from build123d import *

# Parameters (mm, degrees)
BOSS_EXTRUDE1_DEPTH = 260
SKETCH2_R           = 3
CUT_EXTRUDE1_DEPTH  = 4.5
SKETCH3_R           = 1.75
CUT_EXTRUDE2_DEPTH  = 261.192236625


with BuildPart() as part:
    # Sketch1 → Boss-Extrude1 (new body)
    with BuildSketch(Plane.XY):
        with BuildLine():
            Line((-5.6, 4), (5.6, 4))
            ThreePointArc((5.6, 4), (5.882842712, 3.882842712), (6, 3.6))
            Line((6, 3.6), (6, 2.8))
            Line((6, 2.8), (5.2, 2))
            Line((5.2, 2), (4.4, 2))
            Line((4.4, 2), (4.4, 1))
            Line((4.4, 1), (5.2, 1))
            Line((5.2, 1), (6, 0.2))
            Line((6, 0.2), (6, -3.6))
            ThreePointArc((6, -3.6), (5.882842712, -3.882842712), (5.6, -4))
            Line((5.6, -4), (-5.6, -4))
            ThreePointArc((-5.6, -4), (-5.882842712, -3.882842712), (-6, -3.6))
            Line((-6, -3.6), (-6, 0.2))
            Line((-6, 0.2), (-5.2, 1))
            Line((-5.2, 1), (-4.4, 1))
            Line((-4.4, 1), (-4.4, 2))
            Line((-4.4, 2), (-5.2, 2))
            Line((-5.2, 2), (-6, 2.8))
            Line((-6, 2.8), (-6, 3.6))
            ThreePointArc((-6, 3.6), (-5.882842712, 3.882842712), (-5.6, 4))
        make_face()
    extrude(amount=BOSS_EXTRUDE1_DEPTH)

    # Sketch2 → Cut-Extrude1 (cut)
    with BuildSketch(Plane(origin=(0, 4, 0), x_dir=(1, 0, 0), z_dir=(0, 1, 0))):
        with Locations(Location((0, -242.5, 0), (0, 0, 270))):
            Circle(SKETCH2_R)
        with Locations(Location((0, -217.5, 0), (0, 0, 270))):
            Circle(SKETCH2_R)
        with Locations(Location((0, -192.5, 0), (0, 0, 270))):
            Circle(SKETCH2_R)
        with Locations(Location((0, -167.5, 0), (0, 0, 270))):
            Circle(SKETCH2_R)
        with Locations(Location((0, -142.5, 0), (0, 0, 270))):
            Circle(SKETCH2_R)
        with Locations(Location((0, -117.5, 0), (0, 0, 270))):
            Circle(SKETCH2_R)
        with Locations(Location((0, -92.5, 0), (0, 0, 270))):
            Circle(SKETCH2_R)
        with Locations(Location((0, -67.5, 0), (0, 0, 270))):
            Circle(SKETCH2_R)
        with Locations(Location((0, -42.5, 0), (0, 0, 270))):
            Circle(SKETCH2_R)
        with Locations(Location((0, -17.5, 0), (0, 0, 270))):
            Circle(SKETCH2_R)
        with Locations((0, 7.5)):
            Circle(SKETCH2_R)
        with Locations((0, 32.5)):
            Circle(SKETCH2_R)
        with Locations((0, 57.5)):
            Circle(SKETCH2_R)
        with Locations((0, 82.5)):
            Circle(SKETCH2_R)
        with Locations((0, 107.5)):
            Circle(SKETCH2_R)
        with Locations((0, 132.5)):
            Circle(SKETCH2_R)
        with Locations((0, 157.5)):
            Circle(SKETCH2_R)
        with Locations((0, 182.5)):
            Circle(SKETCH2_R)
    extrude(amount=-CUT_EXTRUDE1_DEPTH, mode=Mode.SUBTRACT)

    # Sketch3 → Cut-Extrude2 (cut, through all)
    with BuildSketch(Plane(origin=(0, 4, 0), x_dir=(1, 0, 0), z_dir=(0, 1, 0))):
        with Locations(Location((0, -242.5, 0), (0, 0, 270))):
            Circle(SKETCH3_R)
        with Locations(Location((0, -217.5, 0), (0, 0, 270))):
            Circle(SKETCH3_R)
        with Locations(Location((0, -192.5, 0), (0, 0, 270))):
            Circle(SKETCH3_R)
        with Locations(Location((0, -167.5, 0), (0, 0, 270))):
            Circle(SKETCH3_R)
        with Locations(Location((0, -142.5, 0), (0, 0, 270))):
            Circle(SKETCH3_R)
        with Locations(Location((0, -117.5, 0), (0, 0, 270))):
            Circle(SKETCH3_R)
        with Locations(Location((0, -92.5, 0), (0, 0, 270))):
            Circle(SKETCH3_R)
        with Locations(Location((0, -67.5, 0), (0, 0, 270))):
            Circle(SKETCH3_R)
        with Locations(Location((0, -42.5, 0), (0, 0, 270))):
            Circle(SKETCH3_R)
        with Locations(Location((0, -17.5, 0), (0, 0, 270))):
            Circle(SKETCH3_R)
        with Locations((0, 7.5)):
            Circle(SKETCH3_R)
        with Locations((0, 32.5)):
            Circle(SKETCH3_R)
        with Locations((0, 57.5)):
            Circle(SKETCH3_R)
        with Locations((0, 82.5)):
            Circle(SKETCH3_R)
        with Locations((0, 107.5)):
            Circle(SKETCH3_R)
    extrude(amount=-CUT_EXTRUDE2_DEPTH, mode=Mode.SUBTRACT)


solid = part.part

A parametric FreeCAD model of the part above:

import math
import FreeCAD as App
import Part
import Sketcher

V = App.Vector
Q = App.Units.Quantity

doc = App.newDocument("Part")
body = doc.addObject("PartDesign::Body", "Body")

# Sketch on XY plane
sketch1 = body.newObject("Sketcher::SketchObject", "Sketch")
sketch1.AttachmentSupport = (doc.getObject("XY_Plane"), [""])
sketch1.MapMode = "FlatFace"
sketch1.addGeometry([
    Part.LineSegment(V(5.6, 4, 0), V(-5.6, 4, 0)),  # 0
    Part.ArcOfCircle(Part.Circle(V(-5.6, 3.6, 0), V(0, 0, 1), 0.4), math.radians(90), math.radians(180)),  # 1
    Part.LineSegment(V(-6, 3.6, 0), V(-6, 2.8, 0)),  # 2
    Part.LineSegment(V(-6, 2.8, 0), V(-5.2, 2, 0)),  # 3
    Part.LineSegment(V(-5.2, 2, 0), V(-4.4, 2, 0)),  # 4
    Part.LineSegment(V(-4.4, 2, 0), V(-4.4, 1, 0)),  # 5
    Part.LineSegment(V(-4.4, 1, 0), V(-5.2, 1, 0)),  # 6
    Part.LineSegment(V(-5.2, 1, 0), V(-6, 0.2, 0)),  # 7
    Part.LineSegment(V(-6, 0.2, 0), V(-6, -3.6, 0)),  # 8
    Part.ArcOfCircle(Part.Circle(V(-5.6, -3.6, 0), V(0, 0, 1), 0.4), math.radians(-180), math.radians(-90)),  # 9
    Part.LineSegment(V(-5.6, -4, 0), V(5.6, -4, 0)),  # 10
    Part.ArcOfCircle(Part.Circle(V(5.6, -3.6, 0), V(0, 0, 1), 0.4), math.radians(-90), math.radians(0)),  # 11
    Part.LineSegment(V(6, -3.6, 0), V(6, 0.2, 0)),  # 12
    Part.LineSegment(V(6, 0.2, 0), V(5.2, 1, 0)),  # 13
    Part.LineSegment(V(5.2, 1, 0), V(4.4, 1, 0)),  # 14
    Part.LineSegment(V(4.4, 1, 0), V(4.4, 2, 0)),  # 15
    Part.LineSegment(V(4.4, 2, 0), V(5.2, 2, 0)),  # 16
    Part.LineSegment(V(5.2, 2, 0), V(6, 2.8, 0)),  # 17
    Part.LineSegment(V(6, 2.8, 0), V(6, 3.6, 0)),  # 18
    Part.ArcOfCircle(Part.Circle(V(5.6, 3.6, 0), V(0, 0, 1), 0.4), math.radians(0), math.radians(90)),  # 19
], False)
sketch1.addConstraint([
    Sketcher.Constraint("Tangent", 0, 2, 1, 1),
    Sketcher.Constraint("Tangent", 1, 2, 2, 1),
    Sketcher.Constraint("Coincident", 2, 2, 3, 1),
    Sketcher.Constraint("Coincident", 3, 2, 4, 1),
    Sketcher.Constraint("Coincident", 4, 2, 5, 1),
    Sketcher.Constraint("Coincident", 5, 2, 6, 1),
    Sketcher.Constraint("Coincident", 6, 2, 7, 1),
    Sketcher.Constraint("Coincident", 7, 2, 8, 1),
    Sketcher.Constraint("Tangent", 8, 2, 9, 1),
    Sketcher.Constraint("Tangent", 9, 2, 10, 1),
    Sketcher.Constraint("Tangent", 10, 2, 11, 1),
    Sketcher.Constraint("Tangent", 11, 2, 12, 1),
    Sketcher.Constraint("Coincident", 12, 2, 13, 1),
    Sketcher.Constraint("Coincident", 13, 2, 14, 1),
    Sketcher.Constraint("Coincident", 14, 2, 15, 1),
    Sketcher.Constraint("Coincident", 15, 2, 16, 1),
    Sketcher.Constraint("Coincident", 16, 2, 17, 1),
    Sketcher.Constraint("Coincident", 17, 2, 18, 1),
    Sketcher.Constraint("Tangent", 18, 2, 19, 1),
    Sketcher.Constraint("Tangent", 19, 2, 0, 1),
    Sketcher.Constraint("Horizontal", 0),
    Sketcher.Constraint("Vertical", 2),
    Sketcher.Constraint("Horizontal", 4),
    Sketcher.Constraint("Vertical", 5),
    Sketcher.Constraint("Horizontal", 6),
    Sketcher.Constraint("Vertical", 8),
    Sketcher.Constraint("Horizontal", 10),
    Sketcher.Constraint("Vertical", 12),
    Sketcher.Constraint("Horizontal", 14),
    Sketcher.Constraint("Vertical", 15),
    Sketcher.Constraint("Horizontal", 16),
    Sketcher.Constraint("Vertical", 18),
    Sketcher.Constraint("Equal", 1, 9),
    Sketcher.Constraint("Equal", 9, 11),
    Sketcher.Constraint("Equal", 11, 19),
    Sketcher.Constraint("Symmetric", 1, 3, 11, 3, -1, 1),
    Sketcher.Constraint("Symmetric", 7, 2, 12, 2, -2),
    Sketcher.Constraint("Symmetric", 6, 2, 13, 2, -2),
    Sketcher.Constraint("Symmetric", 4, 2, 15, 2, -2),
    Sketcher.Constraint("Symmetric", 2, 2, 17, 2, -2),
    Sketcher.Constraint("Perpendicular", 3, 7),
    Sketcher.Constraint("Perpendicular", 7, 13),
    Sketcher.Constraint("Perpendicular", 13, 17),
    Sketcher.Constraint("Vertical", 3, 2, 6, 2),
    Sketcher.Constraint("Equal", 16, 2),
    Sketcher.Constraint("Radius", 1, Q("0.4 mm")),
    Sketcher.Constraint("DistanceY", 5, 2, 5, 1, Q("1 mm")),
    Sketcher.Constraint("DistanceX", 0, 2, 0, 1, Q("11.2 mm")),
    Sketcher.Constraint("DistanceX", 4, 1, 4, 2, Q("0.8 mm")),
    Sketcher.Constraint("DistanceY", 8, 2, 8, 1, Q("3.8 mm")),
    Sketcher.Constraint("DistanceY", -1, 1, 0, 2, Q("4 mm")),
])
pad1 = body.newObject("PartDesign::Pad", "Pad")
pad1.Profile = sketch1
pad1.Length = 260

# Sketch on XZ plane
sketch2 = body.newObject("Sketcher::SketchObject", "Sketch001")
sketch2.AttachmentSupport = (doc.getObject("XZ_Plane"), [""])
sketch2.MapMode = "FlatFace"
sketch2.AttachmentOffset = App.Placement(V(0, 0, -4), App.Rotation())
sketch2.addGeometry([
    Part.Circle(V(0, 242.5, 0), V(0, 0, 1), 3),  # 0
    Part.Circle(V(0, 217.5, 0), V(0, 0, 1), 3),  # 1
    Part.Circle(V(0, 192.5, 0), V(0, 0, 1), 3),  # 2
    Part.Circle(V(0, 167.5, 0), V(0, 0, 1), 3),  # 3
    Part.Circle(V(0, 142.5, 0), V(0, 0, 1), 3),  # 4
    Part.Circle(V(0, 117.5, 0), V(0, 0, 1), 3),  # 5
    Part.Circle(V(0, 92.5, 0), V(0, 0, 1), 3),  # 6
    Part.Circle(V(0, 67.5, 0), V(0, 0, 1), 3),  # 7
    Part.Circle(V(0, 42.5, 0), V(0, 0, 1), 3),  # 8
    Part.Circle(V(0, 17.5, 0), V(0, 0, 1), 3),  # 9
    Part.Circle(V(0, -7.5, 0), V(0, 0, 1), 3),  # 10
    Part.Circle(V(0, -32.5, 0), V(0, 0, 1), 3),  # 11
    Part.Circle(V(0, -57.5, 0), V(0, 0, 1), 3),  # 12
    Part.Circle(V(0, -82.5, 0), V(0, 0, 1), 3),  # 13
    Part.Circle(V(0, -107.5, 0), V(0, 0, 1), 3),  # 14
    Part.Circle(V(0, -132.5, 0), V(0, 0, 1), 3),  # 15
    Part.Circle(V(0, -157.5, 0), V(0, 0, 1), 3),  # 16
    Part.Circle(V(0, -182.5, 0), V(0, 0, 1), 3),  # 17
], False)
sketch2.addConstraint([
    Sketcher.Constraint("Equal", 0, 1),
    Sketcher.Constraint("Equal", 1, 2),
    Sketcher.Constraint("Equal", 2, 3),
    Sketcher.Constraint("Equal", 3, 4),
    Sketcher.Constraint("Equal", 4, 5),
    Sketcher.Constraint("Equal", 5, 6),
    Sketcher.Constraint("Equal", 6, 7),
    Sketcher.Constraint("Equal", 7, 8),
    Sketcher.Constraint("Equal", 8, 9),
    Sketcher.Constraint("Equal", 9, 10),
    Sketcher.Constraint("Equal", 10, 11),
    Sketcher.Constraint("Equal", 11, 12),
    Sketcher.Constraint("Equal", 12, 13),
    Sketcher.Constraint("Equal", 13, 14),
    Sketcher.Constraint("Equal", 14, 15),
    Sketcher.Constraint("Equal", 15, 16),
    Sketcher.Constraint("Equal", 16, 17),
    Sketcher.Constraint("PointOnObject", 0, 3, -2),
    Sketcher.Constraint("PointOnObject", 1, 3, -2),
    Sketcher.Constraint("PointOnObject", 2, 3, -2),
    Sketcher.Constraint("PointOnObject", 3, 3, -2),
    Sketcher.Constraint("PointOnObject", 4, 3, -2),
    Sketcher.Constraint("PointOnObject", 5, 3, -2),
    Sketcher.Constraint("PointOnObject", 6, 3, -2),
    Sketcher.Constraint("PointOnObject", 7, 3, -2),
    Sketcher.Constraint("PointOnObject", 8, 3, -2),
    Sketcher.Constraint("PointOnObject", 9, 3, -2),
    Sketcher.Constraint("PointOnObject", 10, 3, -2),
    Sketcher.Constraint("PointOnObject", 11, 3, -2),
    Sketcher.Constraint("PointOnObject", 12, 3, -2),
    Sketcher.Constraint("PointOnObject", 13, 3, -2),
    Sketcher.Constraint("PointOnObject", 14, 3, -2),
    Sketcher.Constraint("PointOnObject", 15, 3, -2),
    Sketcher.Constraint("PointOnObject", 16, 3, -2),
    Sketcher.Constraint("PointOnObject", 17, 3, -2),
    Sketcher.Constraint("Diameter", 0, Q("6 mm")),
    Sketcher.Constraint("DistanceY", 1, 3, 0, 3, Q("25 mm")),
    Sketcher.Constraint("DistanceY", 2, 3, 1, 3, Q("25 mm")),
    Sketcher.Constraint("DistanceY", 3, 3, 2, 3, Q("25 mm")),
    Sketcher.Constraint("DistanceY", 4, 3, 3, 3, Q("25 mm")),
    Sketcher.Constraint("DistanceY", 5, 3, 4, 3, Q("25 mm")),
    Sketcher.Constraint("DistanceY", 6, 3, 5, 3, Q("25 mm")),
    Sketcher.Constraint("DistanceY", 7, 3, 6, 3, Q("25 mm")),
    Sketcher.Constraint("DistanceY", 8, 3, 7, 3, Q("25 mm")),
    Sketcher.Constraint("DistanceY", 9, 3, 8, 3, Q("25 mm")),
    Sketcher.Constraint("DistanceY", 10, 3, 9, 3, Q("25 mm")),
    Sketcher.Constraint("DistanceY", 11, 3, 10, 3, Q("25 mm")),
    Sketcher.Constraint("DistanceY", 12, 3, 11, 3, Q("25 mm")),
    Sketcher.Constraint("DistanceY", 13, 3, 12, 3, Q("25 mm")),
    Sketcher.Constraint("DistanceY", 14, 3, 13, 3, Q("25 mm")),
    Sketcher.Constraint("DistanceY", 15, 3, 14, 3, Q("25 mm")),
    Sketcher.Constraint("DistanceY", 16, 3, 15, 3, Q("25 mm")),
    Sketcher.Constraint("DistanceY", 17, 3, 16, 3, Q("25 mm")),
    Sketcher.Constraint("DistanceY", -1, 1, 0, 3, Q("242.5 mm")),
])
pocket1 = body.newObject("PartDesign::Pocket", "Pocket")
pocket1.Profile = sketch2
pocket1.Length = 4.5
pocket1.Reversed = True

# Sketch on XZ plane
sketch3 = body.newObject("Sketcher::SketchObject", "Sketch002")
sketch3.AttachmentSupport = (doc.getObject("XZ_Plane"), [""])
sketch3.MapMode = "FlatFace"
sketch3.AttachmentOffset = App.Placement(V(0, 0, -4), App.Rotation())
sketch3.addGeometry([
    Part.Circle(V(0, 242.5, 0), V(0, 0, 1), 1.75),  # 0
    Part.Circle(V(0, 217.5, 0), V(0, 0, 1), 1.75),  # 1
    Part.Circle(V(0, 192.5, 0), V(0, 0, 1), 1.75),  # 2
    Part.Circle(V(0, 167.5, 0), V(0, 0, 1), 1.75),  # 3
    Part.Circle(V(0, 142.5, 0), V(0, 0, 1), 1.75),  # 4
    Part.Circle(V(0, 117.5, 0), V(0, 0, 1), 1.75),  # 5
    Part.Circle(V(0, 92.5, 0), V(0, 0, 1), 1.75),  # 6
    Part.Circle(V(0, 67.5, 0), V(0, 0, 1), 1.75),  # 7
    Part.Circle(V(0, 42.5, 0), V(0, 0, 1), 1.75),  # 8
    Part.Circle(V(0, 17.5, 0), V(0, 0, 1), 1.75),  # 9
    Part.Circle(V(0, -7.5, 0), V(0, 0, 1), 1.75),  # 10
    Part.Circle(V(0, -32.5, 0), V(0, 0, 1), 1.75),  # 11
    Part.Circle(V(0, -57.5, 0), V(0, 0, 1), 1.75),  # 12
    Part.Circle(V(0, -82.5, 0), V(0, 0, 1), 1.75),  # 13
    Part.Circle(V(0, -107.5, 0), V(0, 0, 1), 1.75),  # 14
], False)
sketch3.addConstraint([
    Sketcher.Constraint("Equal", 0, 1),
    Sketcher.Constraint("Equal", 1, 2),
    Sketcher.Constraint("Equal", 2, 3),
    Sketcher.Constraint("Equal", 3, 4),
    Sketcher.Constraint("Equal", 4, 5),
    Sketcher.Constraint("Equal", 5, 6),
    Sketcher.Constraint("Equal", 6, 7),
    Sketcher.Constraint("Equal", 7, 8),
    Sketcher.Constraint("Equal", 8, 9),
    Sketcher.Constraint("Equal", 9, 10),
    Sketcher.Constraint("Equal", 10, 11),
    Sketcher.Constraint("Equal", 11, 12),
    Sketcher.Constraint("Equal", 12, 13),
    Sketcher.Constraint("Equal", 13, 14),
    Sketcher.Constraint("PointOnObject", 0, 3, -2),
    Sketcher.Constraint("PointOnObject", 1, 3, -2),
    Sketcher.Constraint("PointOnObject", 2, 3, -2),
    Sketcher.Constraint("PointOnObject", 3, 3, -2),
    Sketcher.Constraint("PointOnObject", 4, 3, -2),
    Sketcher.Constraint("PointOnObject", 5, 3, -2),
    Sketcher.Constraint("PointOnObject", 6, 3, -2),
    Sketcher.Constraint("PointOnObject", 7, 3, -2),
    Sketcher.Constraint("PointOnObject", 8, 3, -2),
    Sketcher.Constraint("PointOnObject", 9, 3, -2),
    Sketcher.Constraint("PointOnObject", 10, 3, -2),
    Sketcher.Constraint("PointOnObject", 11, 3, -2),
    Sketcher.Constraint("PointOnObject", 12, 3, -2),
    Sketcher.Constraint("PointOnObject", 13, 3, -2),
    Sketcher.Constraint("PointOnObject", 14, 3, -2),
    Sketcher.Constraint("Diameter", 0, Q("3.5 mm")),
    Sketcher.Constraint("DistanceY", 1, 3, 0, 3, Q("25 mm")),
    Sketcher.Constraint("DistanceY", 2, 3, 1, 3, Q("25 mm")),
    Sketcher.Constraint("DistanceY", 3, 3, 2, 3, Q("25 mm")),
    Sketcher.Constraint("DistanceY", 4, 3, 3, 3, Q("25 mm")),
    Sketcher.Constraint("DistanceY", 5, 3, 4, 3, Q("25 mm")),
    Sketcher.Constraint("DistanceY", 6, 3, 5, 3, Q("25 mm")),
    Sketcher.Constraint("DistanceY", 7, 3, 6, 3, Q("25 mm")),
    Sketcher.Constraint("DistanceY", 8, 3, 7, 3, Q("25 mm")),
    Sketcher.Constraint("DistanceY", 9, 3, 8, 3, Q("25 mm")),
    Sketcher.Constraint("DistanceY", 10, 3, 9, 3, Q("25 mm")),
    Sketcher.Constraint("DistanceY", 11, 3, 10, 3, Q("25 mm")),
    Sketcher.Constraint("DistanceY", 12, 3, 11, 3, Q("25 mm")),
    Sketcher.Constraint("DistanceY", 13, 3, 12, 3, Q("25 mm")),
    Sketcher.Constraint("DistanceY", 14, 3, 13, 3, Q("25 mm")),
    Sketcher.Constraint("DistanceY", -1, 1, 0, 3, Q("242.5 mm")),
])
pocket2 = body.newObject("PartDesign::Pocket", "Pocket001")
pocket2.Profile = sketch3
pocket2.Type = "ThroughAll"
pocket2.Reversed = True

doc.recompute()
